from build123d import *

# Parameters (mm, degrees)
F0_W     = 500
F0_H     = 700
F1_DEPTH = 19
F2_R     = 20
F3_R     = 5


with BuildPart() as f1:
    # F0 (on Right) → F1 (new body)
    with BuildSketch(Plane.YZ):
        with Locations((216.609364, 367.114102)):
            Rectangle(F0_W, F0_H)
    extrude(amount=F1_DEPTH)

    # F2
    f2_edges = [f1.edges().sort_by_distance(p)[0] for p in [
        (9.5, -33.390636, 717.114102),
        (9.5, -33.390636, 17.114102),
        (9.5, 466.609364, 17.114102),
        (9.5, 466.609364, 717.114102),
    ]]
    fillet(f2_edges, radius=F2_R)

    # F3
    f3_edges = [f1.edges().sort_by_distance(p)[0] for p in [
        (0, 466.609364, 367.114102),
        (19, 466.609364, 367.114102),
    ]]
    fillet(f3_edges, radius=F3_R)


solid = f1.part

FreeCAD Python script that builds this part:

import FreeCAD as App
import Part
import Sketcher
from FreeCAD import Vector
Q = App.Units.Quantity


def edges_at(feature, points):
    """Names of the edges that pass closest to the given points."""
    edges = feature.Shape.Edges
    near = lambda p: min(range(len(edges)), key=lambda i: edges[i].distToShape(Part.Vertex(*p))[0])
    return sorted({f"Edge{near(p) + 1}" for p in points})

doc = App.newDocument("Part")
body = doc.addObject("PartDesign::Body", "Body")

# Sketch on YZ plane
sketch1 = doc.addObject("Sketcher::SketchObject", "Sketch")
body.addObject(sketch1)
sketch1.AttachmentSupport = (doc.YZ_Plane, [""])
sketch1.MapMode = "FlatFace"
sketch1.addGeometry([
    Part.LineSegment(Vector(-33, 717, 0), Vector(-33, 17, 0)),
    Part.LineSegment(Vector(-33, 17, 0), Vector(467, 17, 0)),
    Part.LineSegment(Vector(467, 17, 0), Vector(467, 717, 0)),
    Part.LineSegment(Vector(467, 717, 0), Vector(-33, 717, 0)),
], False)
sketch1.addConstraint([
    Sketcher.Constraint("Coincident", 0, 2, 1, 1),
    Sketcher.Constraint("Coincident", 1, 2, 2, 1),
    Sketcher.Constraint("Coincident", 2, 2, 3, 1),
    Sketcher.Constraint("Coincident", 3, 2, 0, 1),
    Sketcher.Constraint("Vertical", 0),
    Sketcher.Constraint("Horizontal", 1),
    Sketcher.Constraint("Vertical", 2),
    Sketcher.Constraint("Horizontal", 3),
    Sketcher.Constraint("DistanceX", 1, 1, 1, 2, Q("500 mm")),
    Sketcher.Constraint("DistanceY", 0, 2, 0, 1, Q("700 mm")),
    Sketcher.Constraint("DistanceY", -1, 1, 0, 2, Q("17.114102 mm")),
    Sketcher.Constraint("DistanceX", 0, 2, -1, 1, Q("33.390636 mm")),
])
pad1 = doc.addObject("PartDesign::Pad", "Pad")
body.addObject(pad1)
pad1.Profile = sketch1
pad1.Length = 19
doc.recompute()

fillet = doc.addObject("PartDesign::Fillet", "Fillet")
body.addObject(fillet)
fillet.Base = (pad1, edges_at(pad1, [
    (9.5, -33.391, 717.114),
    (9.5, -33.391, 17.114),
    (9.5, 466.609, 17.114),
    (9.5, 466.609, 717.114),
]))
fillet.Radius = 20
doc.recompute()

fillet2 = doc.addObject("PartDesign::Fillet", "Fillet001")
body.addObject(fillet2)
fillet2.Base = (fillet, edges_at(fillet, [(0, 466.609, 367.114), (19, 466.609, 367.114)]))
fillet2.Radius = 5

doc.recompute()
